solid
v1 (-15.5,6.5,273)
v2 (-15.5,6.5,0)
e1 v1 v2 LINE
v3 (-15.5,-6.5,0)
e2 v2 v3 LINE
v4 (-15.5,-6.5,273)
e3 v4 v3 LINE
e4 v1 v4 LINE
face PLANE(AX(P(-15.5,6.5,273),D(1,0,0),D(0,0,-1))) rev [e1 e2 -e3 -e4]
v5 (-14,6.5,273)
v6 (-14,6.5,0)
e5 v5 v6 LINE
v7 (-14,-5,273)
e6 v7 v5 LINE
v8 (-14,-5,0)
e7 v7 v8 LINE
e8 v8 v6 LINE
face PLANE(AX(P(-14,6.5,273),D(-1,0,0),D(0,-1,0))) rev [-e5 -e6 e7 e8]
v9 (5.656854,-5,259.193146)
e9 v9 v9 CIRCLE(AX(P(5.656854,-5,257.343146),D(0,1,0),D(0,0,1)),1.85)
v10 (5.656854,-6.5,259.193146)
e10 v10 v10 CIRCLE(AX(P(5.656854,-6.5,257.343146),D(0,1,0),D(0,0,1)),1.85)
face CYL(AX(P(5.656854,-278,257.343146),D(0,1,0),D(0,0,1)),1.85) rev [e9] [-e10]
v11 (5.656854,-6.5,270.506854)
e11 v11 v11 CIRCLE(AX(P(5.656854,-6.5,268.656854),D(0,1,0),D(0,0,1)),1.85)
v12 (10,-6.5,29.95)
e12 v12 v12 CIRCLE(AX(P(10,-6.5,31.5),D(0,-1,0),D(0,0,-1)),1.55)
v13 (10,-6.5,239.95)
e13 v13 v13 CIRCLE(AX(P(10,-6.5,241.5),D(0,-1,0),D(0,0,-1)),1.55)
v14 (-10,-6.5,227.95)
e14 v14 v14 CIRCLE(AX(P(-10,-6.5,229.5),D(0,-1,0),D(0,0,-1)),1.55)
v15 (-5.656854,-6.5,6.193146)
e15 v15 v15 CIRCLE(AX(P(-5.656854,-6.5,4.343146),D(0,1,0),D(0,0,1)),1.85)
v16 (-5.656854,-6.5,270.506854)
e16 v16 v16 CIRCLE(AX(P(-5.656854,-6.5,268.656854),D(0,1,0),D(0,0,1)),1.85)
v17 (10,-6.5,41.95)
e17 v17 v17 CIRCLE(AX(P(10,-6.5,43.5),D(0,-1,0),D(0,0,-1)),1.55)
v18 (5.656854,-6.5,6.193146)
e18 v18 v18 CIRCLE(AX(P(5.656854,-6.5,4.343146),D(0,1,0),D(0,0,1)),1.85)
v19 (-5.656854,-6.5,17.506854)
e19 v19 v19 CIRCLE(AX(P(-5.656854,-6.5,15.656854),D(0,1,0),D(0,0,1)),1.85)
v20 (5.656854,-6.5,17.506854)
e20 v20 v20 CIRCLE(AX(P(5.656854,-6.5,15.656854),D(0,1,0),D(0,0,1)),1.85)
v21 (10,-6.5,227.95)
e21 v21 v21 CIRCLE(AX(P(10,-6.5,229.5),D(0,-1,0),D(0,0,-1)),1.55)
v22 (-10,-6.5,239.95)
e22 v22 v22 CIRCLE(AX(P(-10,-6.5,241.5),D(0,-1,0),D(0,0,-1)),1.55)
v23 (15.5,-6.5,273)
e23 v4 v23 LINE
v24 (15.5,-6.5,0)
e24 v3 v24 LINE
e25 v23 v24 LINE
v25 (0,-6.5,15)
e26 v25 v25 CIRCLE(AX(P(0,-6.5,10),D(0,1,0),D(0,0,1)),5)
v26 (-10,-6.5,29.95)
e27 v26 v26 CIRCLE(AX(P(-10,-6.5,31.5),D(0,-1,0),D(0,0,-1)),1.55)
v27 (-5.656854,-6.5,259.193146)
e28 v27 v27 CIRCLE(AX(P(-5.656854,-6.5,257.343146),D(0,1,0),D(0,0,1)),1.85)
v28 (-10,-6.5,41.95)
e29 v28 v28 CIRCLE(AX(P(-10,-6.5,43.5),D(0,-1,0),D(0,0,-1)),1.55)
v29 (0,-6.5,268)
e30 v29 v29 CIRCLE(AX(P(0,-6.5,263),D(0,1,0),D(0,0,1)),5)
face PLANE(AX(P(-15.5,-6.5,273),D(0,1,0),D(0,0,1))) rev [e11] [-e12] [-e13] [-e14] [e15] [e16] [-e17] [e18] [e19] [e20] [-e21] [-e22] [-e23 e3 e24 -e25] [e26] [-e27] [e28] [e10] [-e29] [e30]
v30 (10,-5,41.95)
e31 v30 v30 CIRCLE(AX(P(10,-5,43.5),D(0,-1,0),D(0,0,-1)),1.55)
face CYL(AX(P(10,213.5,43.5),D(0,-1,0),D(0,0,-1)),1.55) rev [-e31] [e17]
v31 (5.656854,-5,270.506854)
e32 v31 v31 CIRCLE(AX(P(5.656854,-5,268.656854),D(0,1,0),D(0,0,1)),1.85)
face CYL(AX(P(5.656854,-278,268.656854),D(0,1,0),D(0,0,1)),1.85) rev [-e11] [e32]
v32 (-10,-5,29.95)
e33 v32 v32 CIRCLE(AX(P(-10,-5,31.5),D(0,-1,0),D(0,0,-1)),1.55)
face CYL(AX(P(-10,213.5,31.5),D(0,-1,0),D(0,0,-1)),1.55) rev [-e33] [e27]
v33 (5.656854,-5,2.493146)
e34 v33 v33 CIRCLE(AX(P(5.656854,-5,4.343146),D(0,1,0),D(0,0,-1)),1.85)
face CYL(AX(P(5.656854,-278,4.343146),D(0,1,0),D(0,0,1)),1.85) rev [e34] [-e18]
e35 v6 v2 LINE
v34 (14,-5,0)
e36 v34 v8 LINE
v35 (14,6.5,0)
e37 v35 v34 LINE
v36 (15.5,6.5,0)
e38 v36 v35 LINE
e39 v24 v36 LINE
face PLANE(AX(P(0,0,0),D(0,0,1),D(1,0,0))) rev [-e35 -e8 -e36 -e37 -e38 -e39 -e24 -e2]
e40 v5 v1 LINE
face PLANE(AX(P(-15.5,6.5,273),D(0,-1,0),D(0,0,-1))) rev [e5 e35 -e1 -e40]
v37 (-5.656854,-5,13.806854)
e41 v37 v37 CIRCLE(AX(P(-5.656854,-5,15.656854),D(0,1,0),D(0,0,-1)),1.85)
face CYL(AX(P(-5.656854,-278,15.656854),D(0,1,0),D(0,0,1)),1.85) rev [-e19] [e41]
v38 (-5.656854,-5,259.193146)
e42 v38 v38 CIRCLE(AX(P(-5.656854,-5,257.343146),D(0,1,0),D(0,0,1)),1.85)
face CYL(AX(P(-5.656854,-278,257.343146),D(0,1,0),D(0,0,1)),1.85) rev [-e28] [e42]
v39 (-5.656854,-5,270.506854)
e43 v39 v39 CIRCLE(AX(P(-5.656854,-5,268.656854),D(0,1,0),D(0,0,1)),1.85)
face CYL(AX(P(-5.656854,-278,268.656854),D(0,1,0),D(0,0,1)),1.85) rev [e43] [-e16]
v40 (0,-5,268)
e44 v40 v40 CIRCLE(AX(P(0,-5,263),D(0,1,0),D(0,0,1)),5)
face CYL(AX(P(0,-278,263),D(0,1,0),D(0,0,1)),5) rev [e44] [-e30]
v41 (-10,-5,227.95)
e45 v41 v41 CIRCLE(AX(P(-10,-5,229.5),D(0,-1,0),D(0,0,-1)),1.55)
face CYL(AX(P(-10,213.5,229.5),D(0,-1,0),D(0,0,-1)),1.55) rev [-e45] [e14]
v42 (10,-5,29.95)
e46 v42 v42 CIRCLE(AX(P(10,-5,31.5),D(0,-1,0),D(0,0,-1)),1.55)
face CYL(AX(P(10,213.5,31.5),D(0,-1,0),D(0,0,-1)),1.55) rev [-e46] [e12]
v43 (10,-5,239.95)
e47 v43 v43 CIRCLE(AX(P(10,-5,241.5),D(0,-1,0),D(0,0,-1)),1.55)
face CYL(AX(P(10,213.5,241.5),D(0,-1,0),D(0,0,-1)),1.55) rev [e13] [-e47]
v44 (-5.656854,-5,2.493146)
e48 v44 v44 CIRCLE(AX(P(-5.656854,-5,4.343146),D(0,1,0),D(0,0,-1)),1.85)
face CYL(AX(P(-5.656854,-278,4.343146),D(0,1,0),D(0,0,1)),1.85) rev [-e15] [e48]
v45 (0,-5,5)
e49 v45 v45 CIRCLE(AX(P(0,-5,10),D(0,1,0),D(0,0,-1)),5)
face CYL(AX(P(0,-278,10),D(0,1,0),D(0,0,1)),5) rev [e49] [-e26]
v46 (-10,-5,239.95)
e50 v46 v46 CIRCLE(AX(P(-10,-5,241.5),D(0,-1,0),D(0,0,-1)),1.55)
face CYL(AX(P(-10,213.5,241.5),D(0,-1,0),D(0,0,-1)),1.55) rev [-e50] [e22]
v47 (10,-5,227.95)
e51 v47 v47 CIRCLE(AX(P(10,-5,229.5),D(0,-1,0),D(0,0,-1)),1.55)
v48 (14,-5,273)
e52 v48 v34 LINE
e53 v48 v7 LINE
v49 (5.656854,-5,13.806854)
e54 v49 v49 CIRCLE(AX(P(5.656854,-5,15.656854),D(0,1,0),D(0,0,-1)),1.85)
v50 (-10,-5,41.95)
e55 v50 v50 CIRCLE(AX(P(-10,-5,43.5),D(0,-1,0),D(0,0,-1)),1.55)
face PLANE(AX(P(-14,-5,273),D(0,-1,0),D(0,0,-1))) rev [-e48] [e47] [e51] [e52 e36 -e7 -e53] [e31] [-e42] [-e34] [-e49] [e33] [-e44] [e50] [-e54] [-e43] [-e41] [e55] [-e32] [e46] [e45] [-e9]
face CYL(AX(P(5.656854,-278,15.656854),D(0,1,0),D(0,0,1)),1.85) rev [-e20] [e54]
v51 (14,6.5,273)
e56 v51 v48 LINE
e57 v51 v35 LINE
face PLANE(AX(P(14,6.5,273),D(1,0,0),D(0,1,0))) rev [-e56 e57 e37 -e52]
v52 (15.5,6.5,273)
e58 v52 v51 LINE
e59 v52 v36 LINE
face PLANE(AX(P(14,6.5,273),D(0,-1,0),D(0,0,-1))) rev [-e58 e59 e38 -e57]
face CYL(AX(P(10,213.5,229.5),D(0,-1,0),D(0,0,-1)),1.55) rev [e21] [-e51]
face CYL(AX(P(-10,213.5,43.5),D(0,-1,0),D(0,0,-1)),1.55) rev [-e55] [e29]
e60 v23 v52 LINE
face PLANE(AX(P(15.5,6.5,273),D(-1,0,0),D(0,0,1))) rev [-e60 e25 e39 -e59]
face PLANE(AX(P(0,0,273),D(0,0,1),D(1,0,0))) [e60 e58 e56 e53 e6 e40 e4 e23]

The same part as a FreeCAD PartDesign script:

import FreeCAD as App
import Part
import Sketcher

doc = App.newDocument("Part")
body = doc.addObject("PartDesign::Body", "Body")

sketch1 = doc.addObject("Sketcher::SketchObject", "Sketch")
body.addObject(sketch1)
sketch1.AttachmentSupport = (doc.XY_Plane, [""])
sketch1.MapMode = "FlatFace"
sketch1.addGeometry([
    Part.LineSegment(App.Vector(15.5, 6.5, 0), App.Vector(14, 6.5, 0)),
    Part.LineSegment(App.Vector(14, 6.5, 0), App.Vector(14, -5, 0)),
    Part.LineSegment(App.Vector(14, -5, 0), App.Vector(-14, -5, 0)),
    Part.LineSegment(App.Vector(-14, -5, 0), App.Vector(-14, 6.5, 0)),
    Part.LineSegment(App.Vector(-14, 6.5, 0), App.Vector(-15.5, 6.5, 0)),
    Part.LineSegment(App.Vector(-15.5, 6.5, 0), App.Vector(-15.5, -6.5, 0)),
    Part.LineSegment(App.Vector(-15.5, -6.5, 0), App.Vector(15.5, -6.5, 0)),
    Part.LineSegment(App.Vector(15.5, -6.5, 0), App.Vector(15.5, 6.5, 0)),
], False)
sketch1.addConstraint([
    Sketcher.Constraint("Coincident", 0, 2, 1, 1),
    Sketcher.Constraint("Coincident", 1, 2, 2, 1),
    Sketcher.Constraint("Coincident", 2, 2, 3, 1),
    Sketcher.Constraint("Coincident", 3, 2, 4, 1),
    Sketcher.Constraint("Coincident", 4, 2, 5, 1),
    Sketcher.Constraint("Coincident", 5, 2, 6, 1),
    Sketcher.Constraint("Coincident", 6, 2, 7, 1),
    Sketcher.Constraint("Coincident", 7, 2, 0, 1),
    Sketcher.Constraint("Horizontal", 0),
    Sketcher.Constraint("Vertical", 1),
    Sketcher.Constraint("Horizontal", 2),
    Sketcher.Constraint("Vertical", 3),
    Sketcher.Constraint("Horizontal", 4),
    Sketcher.Constraint("Vertical", 5),
    Sketcher.Constraint("Horizontal", 6),
    Sketcher.Constraint("Vertical", 7),
    Sketcher.Constraint("Symmetric", 4, 2, 6, 2, -1, 1),
    Sketcher.Constraint("Symmetric", 0, 2, 3, 2, -2),
    Sketcher.Constraint("DistanceX", 2, 2, 2, 1, 28.0),
    Sketcher.Constraint("DistanceX", 6, 1, 6, 2, 31.0),
    Sketcher.Constraint("DistanceY", 5, 2, 5, 1, 13.0),
    Sketcher.Constraint("DistanceY", 1, 2, 1, 1, 11.5),
])
pad1 = doc.addObject("PartDesign::Pad", "Pad")
body.addObject(pad1)
pad1.Profile = sketch1
pad1.Length = 273

sketch2 = doc.addObject("Sketcher::SketchObject", "Sketch001")
body.addObject(sketch2)
sketch2.AttachmentSupport = (doc.XZ_Plane, [""])
sketch2.MapMode = "FlatFace"
sketch2.AttachmentOffset = App.Placement(App.Vector(0, 0, 5), App.Rotation())
sketch2.addGeometry([
    Part.Circle(App.Vector(-5.7, 4.3, 0), App.Vector(0, 0, 1), 1.9),
    Part.Circle(App.Vector(0, 263, 0), App.Vector(0, 0, 1), 5),
    Part.Circle(App.Vector(-5.7, 257.3, 0), App.Vector(0, 0, 1), 1.9),
    Part.Circle(App.Vector(5.7, 257.3, 0), App.Vector(0, 0, 1), 1.9),
    Part.Circle(App.Vector(5.7, 268.7, 0), App.Vector(0, 0, 1), 1.9),
    Part.Circle(App.Vector(-5.7, 268.7, 0), App.Vector(0, 0, 1), 1.9),
    Part.Circle(App.Vector(5.7, 4.3, 0), App.Vector(0, 0, 1), 1.9),
    Part.Circle(App.Vector(5.7, 15.7, 0), App.Vector(0, 0, 1), 1.9),
    Part.Circle(App.Vector(-5.7, 15.7, 0), App.Vector(0, 0, 1), 1.9),
    Part.Circle(App.Vector(0, 10, 0), App.Vector(0, 0, 1), 5),
], False)
sketch2.addConstraint([
    Sketcher.Constraint("Equal", 0, 2),
    Sketcher.Constraint("Equal", 2, 3),
    Sketcher.Constraint("Equal", 3, 4),
    Sketcher.Constraint("Equal", 4, 5),
    Sketcher.Constraint("Equal", 5, 6),
    Sketcher.Constraint("Equal", 6, 7),
    Sketcher.Constraint("Equal", 7, 8),
    Sketcher.Constraint("Equal", 1, 9),
    Sketcher.Constraint("Symmetric", 2, 3, 3, 3, -2),
    Sketcher.Constraint("Symmetric", 4, 3, 5, 3, -2),
    Sketcher.Constraint("Symmetric", 0, 3, 6, 3, -2),
    Sketcher.Constraint("Symmetric", 7, 3, 8, 3, -2),
    Sketcher.Constraint("PointOnObject", 1, 3, -2),
    Sketcher.Constraint("PointOnObject", 9, 3, -2),
    Sketcher.Constraint("Vertical", 0, 3, 2, 3),
    Sketcher.Constraint("Vertical", 3, 3, 4, 3),
    Sketcher.Constraint("Vertical", 6, 3, 7, 3),
    Sketcher.Constraint("Diameter", 1, 10.0),
    Sketcher.Constraint("Diameter", 0, 3.7),
    Sketcher.Constraint("DistanceY", -1, 1, 1, 3, 263.0),
    Sketcher.Constraint("DistanceY", -1, 1, 9, 3, 10.0),
    Sketcher.Constraint("DistanceY", 0, 3, 2, 3, 253.0),
    Sketcher.Constraint("DistanceX", 2, 3, 3, 3, 11.313708),
    Sketcher.Constraint("DistanceY", 3, 3, 4, 3, 11.313708),
    Sketcher.Constraint("DistanceY", 6, 3, 7, 3, 11.313708),
    Sketcher.Constraint("DistanceY", -1, 1, 0, 3, 4.343146),
])
pocket1 = doc.addObject("PartDesign::Pocket", "Pocket")
body.addObject(pocket1)
pocket1.Profile = sketch2
pocket1.Length = 273
pocket1.Reversed = True

sketch3 = doc.addObject("Sketcher::SketchObject", "Sketch002")
body.addObject(sketch3)
sketch3.AttachmentSupport = (doc.XZ_Plane, [""])
sketch3.MapMode = "FlatFace"
sketch3.AttachmentOffset = App.Placement(App.Vector(0, 0, 6.5), App.Rotation())
sketch3.addGeometry([
    Part.Circle(App.Vector(-10, 229.5, 0), App.Vector(0, 0, 1), 1.6),
    Part.Circle(App.Vector(-10, 241.5, 0), App.Vector(0, 0, 1), 1.6),
    Part.Circle(App.Vector(10, 229.5, 0), App.Vector(0, 0, 1), 1.6),
    Part.Circle(App.Vector(10, 241.5, 0), App.Vector(0, 0, 1), 1.6),
    Part.Circle(App.Vector(10, 31.5, 0), App.Vector(0, 0, 1), 1.6),
    Part.Circle(App.Vector(10, 43.5, 0), App.Vector(0, 0, 1), 1.6),
    Part.Circle(App.Vector(-10, 31.5, 0), App.Vector(0, 0, 1), 1.6),
    Part.Circle(App.Vector(-10, 43.5, 0), App.Vector(0, 0, 1), 1.6),
], False)
sketch3.addConstraint([
    Sketcher.Constraint("Equal", 0, 1),
    Sketcher.Constraint("Equal", 1, 2),
    Sketcher.Constraint("Equal", 2, 3),
    Sketcher.Constraint("Equal", 3, 4),
    Sketcher.Constraint("Equal", 4, 5),
    Sketcher.Constraint("Equal", 5, 6),
    Sketcher.Constraint("Equal", 6, 7),
    Sketcher.Constraint("Symmetric", 0, 3, 2, 3, -2),
    Sketcher.Constraint("Symmetric", 1, 3, 3, 3, -2),
    Sketcher.Constraint("Symmetric", 4, 3, 6, 3, -2),
    Sketcher.Constraint("Symmetric", 5, 3, 7, 3, -2),
    Sketcher.Constraint("Vertical", 0, 3, 1, 3),
    Sketcher.Constraint("Vertical", 3, 3, 4, 3),
    Sketcher.Constraint("Vertical", 4, 3, 5, 3),
    Sketcher.Constraint("Diameter", 0, 3.1),
    Sketcher.Constraint("DistanceX", 0, 3, -1, 1, 10.0),
    Sketcher.Constraint("DistanceY", 0, 3, 1, 3, 12.0),
    Sketcher.Constraint("DistanceY", 4, 3, 2, 3, 198.0),
    Sketcher.Constraint("DistanceY", 4, 3, 5, 3, 12.0),
    Sketcher.Constraint("DistanceY", -1, 1, 0, 3, 229.5),
])
pocket2 = doc.addObject("PartDesign::Pocket", "Pocket001")
body.addObject(pocket2)
pocket2.Profile = sketch3
pocket2.Length = 220

doc.recompute()
